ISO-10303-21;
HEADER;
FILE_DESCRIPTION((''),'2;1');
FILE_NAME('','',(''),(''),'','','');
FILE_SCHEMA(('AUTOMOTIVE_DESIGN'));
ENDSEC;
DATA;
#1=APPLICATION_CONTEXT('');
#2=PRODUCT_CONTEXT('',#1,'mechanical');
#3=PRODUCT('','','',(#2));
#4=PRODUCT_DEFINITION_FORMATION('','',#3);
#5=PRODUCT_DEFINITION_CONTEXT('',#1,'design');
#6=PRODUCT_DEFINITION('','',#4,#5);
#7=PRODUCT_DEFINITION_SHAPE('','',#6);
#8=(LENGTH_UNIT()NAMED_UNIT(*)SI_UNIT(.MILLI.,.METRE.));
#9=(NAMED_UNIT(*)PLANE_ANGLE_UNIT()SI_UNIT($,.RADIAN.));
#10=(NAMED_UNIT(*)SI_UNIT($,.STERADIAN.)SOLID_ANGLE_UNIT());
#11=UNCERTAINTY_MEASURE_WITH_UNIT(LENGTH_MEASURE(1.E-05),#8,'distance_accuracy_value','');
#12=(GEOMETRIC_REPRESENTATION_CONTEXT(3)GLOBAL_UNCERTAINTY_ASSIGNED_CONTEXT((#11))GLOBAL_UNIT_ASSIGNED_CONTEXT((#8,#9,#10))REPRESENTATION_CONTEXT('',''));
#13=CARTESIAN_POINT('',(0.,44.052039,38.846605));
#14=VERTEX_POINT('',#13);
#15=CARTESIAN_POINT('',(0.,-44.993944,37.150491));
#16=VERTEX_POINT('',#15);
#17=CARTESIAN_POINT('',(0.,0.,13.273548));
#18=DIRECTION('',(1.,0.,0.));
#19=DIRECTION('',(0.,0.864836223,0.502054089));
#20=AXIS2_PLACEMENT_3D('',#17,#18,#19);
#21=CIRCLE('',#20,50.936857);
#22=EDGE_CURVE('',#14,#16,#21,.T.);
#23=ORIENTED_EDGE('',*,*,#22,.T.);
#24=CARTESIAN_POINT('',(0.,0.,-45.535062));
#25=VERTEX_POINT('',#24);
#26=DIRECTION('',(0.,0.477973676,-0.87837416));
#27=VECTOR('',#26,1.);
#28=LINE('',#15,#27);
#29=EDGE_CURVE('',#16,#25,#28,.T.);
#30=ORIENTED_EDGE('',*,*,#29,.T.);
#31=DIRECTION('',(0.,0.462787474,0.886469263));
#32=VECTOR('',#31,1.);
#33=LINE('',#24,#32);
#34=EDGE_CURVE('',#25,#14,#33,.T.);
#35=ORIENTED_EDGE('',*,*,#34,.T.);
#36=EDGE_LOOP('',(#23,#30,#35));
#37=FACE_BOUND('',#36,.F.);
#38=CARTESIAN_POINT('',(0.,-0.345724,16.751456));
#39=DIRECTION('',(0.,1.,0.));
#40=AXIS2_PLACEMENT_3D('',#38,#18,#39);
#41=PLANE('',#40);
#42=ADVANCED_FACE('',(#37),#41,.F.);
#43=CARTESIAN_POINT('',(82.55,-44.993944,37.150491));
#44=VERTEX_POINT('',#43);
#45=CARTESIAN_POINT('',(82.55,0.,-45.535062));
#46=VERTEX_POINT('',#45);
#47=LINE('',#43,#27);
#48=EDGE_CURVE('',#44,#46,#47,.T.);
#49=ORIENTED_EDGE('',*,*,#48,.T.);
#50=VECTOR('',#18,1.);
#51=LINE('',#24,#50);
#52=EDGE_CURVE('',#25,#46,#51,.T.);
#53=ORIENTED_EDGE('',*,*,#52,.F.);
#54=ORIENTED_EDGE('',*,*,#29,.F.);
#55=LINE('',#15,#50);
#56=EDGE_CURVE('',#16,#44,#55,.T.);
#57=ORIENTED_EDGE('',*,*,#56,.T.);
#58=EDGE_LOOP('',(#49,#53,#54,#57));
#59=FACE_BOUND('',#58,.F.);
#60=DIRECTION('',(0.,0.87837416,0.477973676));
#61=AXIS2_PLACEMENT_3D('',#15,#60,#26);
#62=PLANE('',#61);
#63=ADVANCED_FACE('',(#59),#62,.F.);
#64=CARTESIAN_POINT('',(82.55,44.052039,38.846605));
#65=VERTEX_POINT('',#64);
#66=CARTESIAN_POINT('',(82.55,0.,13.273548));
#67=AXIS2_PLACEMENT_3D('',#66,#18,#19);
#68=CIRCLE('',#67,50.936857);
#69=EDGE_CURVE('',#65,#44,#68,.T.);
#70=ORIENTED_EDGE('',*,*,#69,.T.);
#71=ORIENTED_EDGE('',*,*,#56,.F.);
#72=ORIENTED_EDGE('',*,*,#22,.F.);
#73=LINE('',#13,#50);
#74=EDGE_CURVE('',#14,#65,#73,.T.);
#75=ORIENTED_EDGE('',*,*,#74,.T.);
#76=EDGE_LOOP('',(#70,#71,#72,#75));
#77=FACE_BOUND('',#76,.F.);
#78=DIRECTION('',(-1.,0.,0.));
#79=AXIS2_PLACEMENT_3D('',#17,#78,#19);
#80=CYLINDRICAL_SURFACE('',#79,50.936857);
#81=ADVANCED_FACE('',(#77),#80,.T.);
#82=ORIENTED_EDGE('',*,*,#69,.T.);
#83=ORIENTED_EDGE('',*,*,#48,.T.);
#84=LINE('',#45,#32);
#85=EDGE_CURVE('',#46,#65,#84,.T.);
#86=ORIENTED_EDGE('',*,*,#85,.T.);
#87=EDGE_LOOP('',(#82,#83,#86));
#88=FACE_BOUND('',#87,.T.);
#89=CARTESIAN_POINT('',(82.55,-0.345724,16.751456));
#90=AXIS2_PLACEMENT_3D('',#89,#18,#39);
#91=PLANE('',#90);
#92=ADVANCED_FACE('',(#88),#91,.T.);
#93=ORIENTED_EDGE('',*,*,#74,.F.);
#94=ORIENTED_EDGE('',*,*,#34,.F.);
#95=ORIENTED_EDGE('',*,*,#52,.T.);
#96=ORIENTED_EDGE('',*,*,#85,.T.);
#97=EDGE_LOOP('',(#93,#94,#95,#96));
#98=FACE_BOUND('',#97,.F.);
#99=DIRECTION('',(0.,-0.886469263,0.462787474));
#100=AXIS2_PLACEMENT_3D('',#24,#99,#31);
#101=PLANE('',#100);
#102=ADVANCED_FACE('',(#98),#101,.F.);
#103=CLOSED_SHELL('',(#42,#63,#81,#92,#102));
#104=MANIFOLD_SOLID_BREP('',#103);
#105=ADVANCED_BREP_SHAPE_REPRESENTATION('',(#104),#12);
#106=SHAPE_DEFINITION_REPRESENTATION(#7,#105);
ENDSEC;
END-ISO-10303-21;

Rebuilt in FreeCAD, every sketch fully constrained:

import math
import FreeCAD as App
import Part
import Sketcher
from FreeCAD import Vector
Q = App.Units.Quantity

doc = App.newDocument("Part")
body = doc.addObject("PartDesign::Body", "Body")

# Sketch on YZ plane
sketch1 = body.newObject("Sketcher::SketchObject", "Sketch")
sketch1.AttachmentSupport = (doc.getObject("YZ_Plane"), [""])
sketch1.MapMode = "FlatFace"
sketch1.addGeometry([
    Part.LineSegment(Vector(0, -46, 0), Vector(44, 39, 0)),
    Part.ArcOfCircle(Part.Circle(Vector(0, 13, 0), Vector(0, 0, 1), 51), math.radians(30), math.radians(152)),
    Part.LineSegment(Vector(-45, 37, 0), Vector(0, -46, 0)),
], False)
sketch1.addConstraint([
    Sketcher.Constraint("Coincident", 0, 2, 1, 1),
    Sketcher.Constraint("Coincident", 1, 2, 2, 1),
    Sketcher.Constraint("Coincident", 2, 2, 0, 1),
    Sketcher.Constraint("PointOnObject", 1, 3, -2),
    Sketcher.Constraint("PointOnObject", 2, 2, -2),
    Sketcher.Constraint("Radius", 1, Q("50.936857 mm")),
    Sketcher.Constraint("DistanceX", -1, 1, 0, 2, Q("44.052039 mm")),
    Sketcher.Constraint("DistanceY", -1, 1, 1, 2, Q("37.150491 mm")),
    Sketcher.Constraint("DistanceY", 2, 2, 1, 3, Q("58.80861 mm")),
    Sketcher.Constraint("Distance", 2, Q("94.134774 mm")),
])
pad1 = body.newObject("PartDesign::Pad", "Pad")
pad1.Profile = sketch1
pad1.Length = Q("3.25 in")

doc.recompute()
